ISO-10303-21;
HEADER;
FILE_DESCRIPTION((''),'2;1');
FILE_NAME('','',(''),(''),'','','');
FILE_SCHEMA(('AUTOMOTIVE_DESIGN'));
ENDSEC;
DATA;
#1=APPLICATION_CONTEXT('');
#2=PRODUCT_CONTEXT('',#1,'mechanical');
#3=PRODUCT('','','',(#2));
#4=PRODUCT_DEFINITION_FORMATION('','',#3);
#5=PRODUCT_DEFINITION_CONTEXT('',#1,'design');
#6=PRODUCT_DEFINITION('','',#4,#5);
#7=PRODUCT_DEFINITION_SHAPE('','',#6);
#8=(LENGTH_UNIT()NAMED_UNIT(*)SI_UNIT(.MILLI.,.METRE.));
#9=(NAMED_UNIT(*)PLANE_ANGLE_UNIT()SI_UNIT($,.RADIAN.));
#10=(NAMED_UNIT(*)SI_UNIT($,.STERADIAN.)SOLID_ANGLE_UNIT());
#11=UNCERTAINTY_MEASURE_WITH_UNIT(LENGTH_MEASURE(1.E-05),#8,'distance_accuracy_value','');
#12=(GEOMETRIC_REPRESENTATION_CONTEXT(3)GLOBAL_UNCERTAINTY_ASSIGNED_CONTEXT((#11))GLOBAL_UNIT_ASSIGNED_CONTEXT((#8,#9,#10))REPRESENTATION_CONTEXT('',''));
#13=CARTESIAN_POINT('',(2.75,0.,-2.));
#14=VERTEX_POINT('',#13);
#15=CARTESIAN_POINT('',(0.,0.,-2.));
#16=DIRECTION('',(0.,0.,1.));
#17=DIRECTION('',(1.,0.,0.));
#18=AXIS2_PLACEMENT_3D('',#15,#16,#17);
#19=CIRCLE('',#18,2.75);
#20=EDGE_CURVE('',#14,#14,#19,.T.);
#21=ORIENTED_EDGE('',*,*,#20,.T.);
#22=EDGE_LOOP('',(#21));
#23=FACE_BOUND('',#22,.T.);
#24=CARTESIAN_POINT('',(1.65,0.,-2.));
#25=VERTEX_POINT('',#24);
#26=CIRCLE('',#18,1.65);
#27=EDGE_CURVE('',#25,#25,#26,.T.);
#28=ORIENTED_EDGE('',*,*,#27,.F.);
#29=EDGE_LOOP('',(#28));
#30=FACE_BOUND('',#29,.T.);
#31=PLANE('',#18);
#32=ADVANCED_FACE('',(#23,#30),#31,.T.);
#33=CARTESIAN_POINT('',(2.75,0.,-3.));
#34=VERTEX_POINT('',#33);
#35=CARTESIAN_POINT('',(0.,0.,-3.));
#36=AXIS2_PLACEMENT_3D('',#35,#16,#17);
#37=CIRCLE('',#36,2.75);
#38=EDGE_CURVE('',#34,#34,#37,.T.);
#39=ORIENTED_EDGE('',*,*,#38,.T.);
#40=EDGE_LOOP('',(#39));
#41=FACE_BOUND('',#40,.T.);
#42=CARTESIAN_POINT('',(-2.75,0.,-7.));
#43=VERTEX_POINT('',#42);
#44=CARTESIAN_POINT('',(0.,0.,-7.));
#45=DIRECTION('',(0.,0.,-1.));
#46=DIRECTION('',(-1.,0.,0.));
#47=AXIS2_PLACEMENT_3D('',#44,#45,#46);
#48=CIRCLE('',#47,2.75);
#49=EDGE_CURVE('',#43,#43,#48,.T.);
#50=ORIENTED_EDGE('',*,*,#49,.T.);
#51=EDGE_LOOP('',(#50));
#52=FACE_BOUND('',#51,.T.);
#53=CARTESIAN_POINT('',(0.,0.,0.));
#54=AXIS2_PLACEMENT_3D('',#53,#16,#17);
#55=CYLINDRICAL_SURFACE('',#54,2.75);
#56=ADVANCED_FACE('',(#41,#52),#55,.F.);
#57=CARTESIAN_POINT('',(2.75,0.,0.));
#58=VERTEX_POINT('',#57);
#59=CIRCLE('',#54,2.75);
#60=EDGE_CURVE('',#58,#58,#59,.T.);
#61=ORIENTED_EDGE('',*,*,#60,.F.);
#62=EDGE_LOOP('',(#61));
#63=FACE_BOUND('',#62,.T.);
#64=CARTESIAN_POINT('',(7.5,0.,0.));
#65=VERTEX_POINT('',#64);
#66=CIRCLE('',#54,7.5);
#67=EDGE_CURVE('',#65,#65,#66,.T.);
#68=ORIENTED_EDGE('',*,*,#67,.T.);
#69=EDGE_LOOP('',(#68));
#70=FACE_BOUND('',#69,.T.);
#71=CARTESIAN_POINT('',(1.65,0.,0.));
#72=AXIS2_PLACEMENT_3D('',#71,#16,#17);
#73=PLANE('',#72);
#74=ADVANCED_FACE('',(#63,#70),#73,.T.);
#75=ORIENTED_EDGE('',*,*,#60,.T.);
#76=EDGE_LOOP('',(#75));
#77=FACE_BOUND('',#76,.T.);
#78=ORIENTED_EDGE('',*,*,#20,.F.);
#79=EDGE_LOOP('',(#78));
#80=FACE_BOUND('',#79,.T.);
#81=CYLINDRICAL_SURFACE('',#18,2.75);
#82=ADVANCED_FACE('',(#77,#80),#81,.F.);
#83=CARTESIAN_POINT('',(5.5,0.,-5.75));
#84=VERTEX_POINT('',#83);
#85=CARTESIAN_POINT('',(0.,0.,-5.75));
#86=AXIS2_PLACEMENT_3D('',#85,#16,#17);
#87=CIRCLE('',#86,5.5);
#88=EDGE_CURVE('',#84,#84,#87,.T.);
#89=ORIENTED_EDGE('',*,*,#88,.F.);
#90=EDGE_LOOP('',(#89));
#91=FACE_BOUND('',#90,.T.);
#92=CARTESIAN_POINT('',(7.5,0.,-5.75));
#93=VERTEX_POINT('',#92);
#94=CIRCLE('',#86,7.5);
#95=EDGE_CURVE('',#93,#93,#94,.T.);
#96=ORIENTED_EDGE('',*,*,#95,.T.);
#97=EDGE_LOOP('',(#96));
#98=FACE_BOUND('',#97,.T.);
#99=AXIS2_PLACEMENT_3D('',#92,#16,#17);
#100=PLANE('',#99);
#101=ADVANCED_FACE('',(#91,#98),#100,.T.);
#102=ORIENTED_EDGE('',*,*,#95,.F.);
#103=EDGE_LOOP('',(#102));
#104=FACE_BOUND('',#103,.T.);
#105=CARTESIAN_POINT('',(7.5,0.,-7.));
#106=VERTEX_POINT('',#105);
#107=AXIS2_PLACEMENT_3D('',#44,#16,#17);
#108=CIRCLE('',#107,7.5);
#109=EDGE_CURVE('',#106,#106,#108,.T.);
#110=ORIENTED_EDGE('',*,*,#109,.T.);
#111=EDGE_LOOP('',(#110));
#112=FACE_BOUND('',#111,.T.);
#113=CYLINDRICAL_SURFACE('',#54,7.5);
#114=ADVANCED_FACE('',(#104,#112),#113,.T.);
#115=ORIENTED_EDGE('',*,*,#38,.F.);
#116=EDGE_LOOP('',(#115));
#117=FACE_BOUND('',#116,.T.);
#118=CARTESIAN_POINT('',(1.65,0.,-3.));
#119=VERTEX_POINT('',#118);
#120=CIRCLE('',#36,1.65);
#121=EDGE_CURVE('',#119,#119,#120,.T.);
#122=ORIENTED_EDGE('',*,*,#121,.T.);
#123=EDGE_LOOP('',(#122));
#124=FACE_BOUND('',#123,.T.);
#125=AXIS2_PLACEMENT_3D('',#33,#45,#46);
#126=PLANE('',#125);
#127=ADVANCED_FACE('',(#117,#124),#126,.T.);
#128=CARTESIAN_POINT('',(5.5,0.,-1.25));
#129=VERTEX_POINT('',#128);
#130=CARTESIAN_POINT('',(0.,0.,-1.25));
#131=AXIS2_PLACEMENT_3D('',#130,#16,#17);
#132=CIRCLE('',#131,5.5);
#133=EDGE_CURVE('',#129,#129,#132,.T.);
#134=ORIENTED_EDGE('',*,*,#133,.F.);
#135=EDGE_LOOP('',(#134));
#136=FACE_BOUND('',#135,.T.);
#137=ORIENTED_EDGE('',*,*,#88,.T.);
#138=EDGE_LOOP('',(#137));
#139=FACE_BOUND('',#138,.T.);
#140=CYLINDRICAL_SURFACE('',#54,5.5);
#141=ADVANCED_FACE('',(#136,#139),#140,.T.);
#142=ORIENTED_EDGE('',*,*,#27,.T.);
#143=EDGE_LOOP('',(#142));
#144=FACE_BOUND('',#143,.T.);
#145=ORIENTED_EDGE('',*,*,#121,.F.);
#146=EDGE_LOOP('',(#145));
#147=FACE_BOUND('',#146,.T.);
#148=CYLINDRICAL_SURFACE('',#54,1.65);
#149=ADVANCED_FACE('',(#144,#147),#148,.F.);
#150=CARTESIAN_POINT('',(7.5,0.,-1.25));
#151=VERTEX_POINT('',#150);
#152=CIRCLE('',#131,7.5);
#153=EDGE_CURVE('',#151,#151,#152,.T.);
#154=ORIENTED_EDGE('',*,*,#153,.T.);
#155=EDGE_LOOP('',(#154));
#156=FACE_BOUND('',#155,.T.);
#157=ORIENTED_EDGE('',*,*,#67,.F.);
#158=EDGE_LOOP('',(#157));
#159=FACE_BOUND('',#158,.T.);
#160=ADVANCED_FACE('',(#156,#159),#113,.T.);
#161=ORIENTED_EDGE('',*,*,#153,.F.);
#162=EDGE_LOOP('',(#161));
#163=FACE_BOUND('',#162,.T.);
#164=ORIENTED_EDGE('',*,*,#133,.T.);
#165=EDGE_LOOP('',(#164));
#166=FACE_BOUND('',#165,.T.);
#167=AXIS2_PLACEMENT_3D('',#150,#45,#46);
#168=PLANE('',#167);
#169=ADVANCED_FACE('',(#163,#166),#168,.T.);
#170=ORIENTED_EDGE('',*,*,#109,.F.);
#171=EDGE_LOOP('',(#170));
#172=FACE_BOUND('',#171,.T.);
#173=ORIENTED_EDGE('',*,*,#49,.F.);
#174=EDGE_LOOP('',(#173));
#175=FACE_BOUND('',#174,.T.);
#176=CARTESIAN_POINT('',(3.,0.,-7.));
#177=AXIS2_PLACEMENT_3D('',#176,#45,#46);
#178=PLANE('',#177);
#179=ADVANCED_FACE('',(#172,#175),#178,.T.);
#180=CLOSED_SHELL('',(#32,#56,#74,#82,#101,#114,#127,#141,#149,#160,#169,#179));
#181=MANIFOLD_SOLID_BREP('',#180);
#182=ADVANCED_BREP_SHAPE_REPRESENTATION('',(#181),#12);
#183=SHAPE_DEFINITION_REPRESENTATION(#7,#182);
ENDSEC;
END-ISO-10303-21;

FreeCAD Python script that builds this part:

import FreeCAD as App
import Part
import Sketcher
from FreeCAD import Vector
Q = App.Units.Quantity

doc = App.newDocument("Part")
body = doc.addObject("PartDesign::Body", "Body")

# Sketch on XZ plane
sketch1 = body.newObject("Sketcher::SketchObject", "Sketch")
sketch1.AttachmentSupport = (doc.getObject("XZ_Plane"), [""])
sketch1.MapMode = "FlatFace"
sketch1.addGeometry(Part.LineSegment(Vector(1.65, 0, 0), Vector(7.5, 0, 0)), False)
sketch1.addGeometry(Part.LineSegment(Vector(7.5, 0, 0), Vector(7.5, -1.25, 0)), False)
sketch1.addGeometry(Part.LineSegment(Vector(7.5, -1.25, 0), Vector(5.5, -1.25, 0)), False)
sketch1.addGeometry(Part.LineSegment(Vector(5.5, -1.25, 0), Vector(5.5, -5.75, 0)), False)
sketch1.addGeometry(Part.LineSegment(Vector(5.5, -5.75, 0), Vector(7.5, -5.75, 0)), False)
sketch1.addGeometry(Part.LineSegment(Vector(7.5, -5.75, 0), Vector(7.5, -7, 0)), False)
sketch1.addGeometry(Part.LineSegment(Vector(7.5, -7, 0), Vector(3, -7, 0)), False)
sketch1.addGeometry(Part.LineSegment(Vector(3, -7, 0), Vector(3, -9, 0)), False)
sketch1.addGeometry(Part.LineSegment(Vector(3, -9, 0), Vector(2.75, -9, 0)), False)
sketch1.addGeometry(Part.LineSegment(Vector(2.75, -9, 0), Vector(2.75, -3, 0)), False)
sketch1.addGeometry(Part.LineSegment(Vector(2.75, -3, 0), Vector(1.65, -3, 0)), False)
sketch1.addGeometry(Part.LineSegment(Vector(1.65, -3, 0), Vector(1.65, 0, 0)), False)
sketch1.addConstraint(Sketcher.Constraint("Coincident", 0, 2, 1, 1))
sketch1.addConstraint(Sketcher.Constraint("Coincident", 1, 2, 2, 1))
sketch1.addConstraint(Sketcher.Constraint("Coincident", 2, 2, 3, 1))
sketch1.addConstraint(Sketcher.Constraint("Coincident", 3, 2, 4, 1))
sketch1.addConstraint(Sketcher.Constraint("Coincident", 4, 2, 5, 1))
sketch1.addConstraint(Sketcher.Constraint("Coincident", 5, 2, 6, 1))
sketch1.addConstraint(Sketcher.Constraint("Coincident", 6, 2, 7, 1))
sketch1.addConstraint(Sketcher.Constraint("Coincident", 7, 2, 8, 1))
sketch1.addConstraint(Sketcher.Constraint("Coincident", 8, 2, 9, 1))
sketch1.addConstraint(Sketcher.Constraint("Coincident", 9, 2, 10, 1))
sketch1.addConstraint(Sketcher.Constraint("Coincident", 10, 2, 11, 1))
sketch1.addConstraint(Sketcher.Constraint("Coincident", 11, 2, 0, 1))
sketch1.addConstraint(Sketcher.Constraint("Horizontal", 0))
sketch1.addConstraint(Sketcher.Constraint("Vertical", 1))
sketch1.addConstraint(Sketcher.Constraint("Horizontal", 2))
sketch1.addConstraint(Sketcher.Constraint("Vertical", 3))
sketch1.addConstraint(Sketcher.Constraint("Horizontal", 4))
sketch1.addConstraint(Sketcher.Constraint("Vertical", 5))
sketch1.addConstraint(Sketcher.Constraint("Horizontal", 6))
sketch1.addConstraint(Sketcher.Constraint("Vertical", 7))
sketch1.addConstraint(Sketcher.Constraint("Horizontal", 8))
sketch1.addConstraint(Sketcher.Constraint("Vertical", 9))
sketch1.addConstraint(Sketcher.Constraint("Horizontal", 10))
sketch1.addConstraint(Sketcher.Constraint("Vertical", 11))
sketch1.addConstraint(Sketcher.Constraint("PointOnObject", 0, 2, -1))
sketch1.addConstraint(Sketcher.Constraint("Vertical", 1, 2, 4, 2))
sketch1.addConstraint(Sketcher.Constraint("Equal", 6, 3))
sketch1.addConstraint(Sketcher.Constraint("Equal", 1, 5))
sketch1.addConstraint(Sketcher.Constraint("Equal", 4, 7))
sketch1.addConstraint(Sketcher.Constraint("DistanceX", 2, 2, 2, 1, Q("2 mm")))
sketch1.addConstraint(Sketcher.Constraint("DistanceY", 9, 1, 9, 2, Q("6 mm")))
sketch1.addConstraint(Sketcher.Constraint("DistanceY", 11, 1, 11, 2, Q("3 mm")))
sketch1.addConstraint(Sketcher.Constraint("DistanceX", 6, 2, 6, 1, Q("4.5 mm")))
sketch1.addConstraint(Sketcher.Constraint("DistanceX", 10, 2, 10, 1, Q("1.1 mm")))
sketch1.addConstraint(Sketcher.Constraint("DistanceX", -1, 1, 6, 2, Q("3 mm")))
sketch1.addConstraint(Sketcher.Constraint("DistanceX", 0, 1, 0, 2, Q("5.85 mm")))
revolution = body.newObject("PartDesign::Revolution", "Revolution")
revolution.Profile = sketch1
revolution.ReferenceAxis = (sketch1, ["V_Axis"])
revolution.Angle = 360

# Sketch on XY plane
sketch2 = body.newObject("Sketcher::SketchObject", "Sketch001")
sketch2.AttachmentSupport = (doc.getObject("XY_Plane"), [""])
sketch2.MapMode = "FlatFace"
sketch2.AttachmentOffset = App.Placement(Vector(0, 0, -9), App.Rotation())
sketch2.addGeometry(Part.Circle(Vector(0, 0, 0), Vector(0, 0, 1), 3), False)
sketch2.addConstraint(Sketcher.Constraint("Coincident", 0, 3, -1, 1))
sketch2.addConstraint(Sketcher.Constraint("Diameter", 0, Q("6 mm")))
pocket1 = body.newObject("PartDesign::Pocket", "Pocket")
pocket1.Profile = sketch2
pocket1.Length = 2
pocket1.Reversed = True

# Sketch on XY plane
sketch3 = body.newObject("Sketcher::SketchObject", "Sketch002")
sketch3.AttachmentSupport = (doc.getObject("XY_Plane"), [""])
sketch3.MapMode = "FlatFace"
sketch3.addGeometry(Part.Circle(Vector(0, 0, 0), Vector(0, 0, 1), 2.8), False)
sketch3.addConstraint(Sketcher.Constraint("Coincident", 0, 3, -1, 1))
sketch3.addConstraint(Sketcher.Constraint("Diameter", 0, Q("5.5 mm")))
pocket2 = body.newObject("PartDesign::Pocket", "Pocket001")
pocket2.Profile = sketch3
pocket2.Length = 2

doc.recompute()
